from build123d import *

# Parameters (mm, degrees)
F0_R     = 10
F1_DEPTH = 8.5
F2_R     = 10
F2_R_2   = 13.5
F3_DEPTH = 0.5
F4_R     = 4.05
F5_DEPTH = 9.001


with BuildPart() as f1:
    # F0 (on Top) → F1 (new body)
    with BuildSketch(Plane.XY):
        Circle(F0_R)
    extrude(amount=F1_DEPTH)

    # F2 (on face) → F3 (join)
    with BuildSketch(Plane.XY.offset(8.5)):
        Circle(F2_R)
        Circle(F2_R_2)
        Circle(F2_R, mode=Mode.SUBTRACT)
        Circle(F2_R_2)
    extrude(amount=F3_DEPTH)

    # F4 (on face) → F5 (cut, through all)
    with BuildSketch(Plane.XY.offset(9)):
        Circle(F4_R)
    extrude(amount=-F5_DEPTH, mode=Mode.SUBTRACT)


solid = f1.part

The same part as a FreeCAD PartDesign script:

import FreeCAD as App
import Part
import Sketcher

doc = App.newDocument("Part")
body = doc.addObject("PartDesign::Body", "Body")

# Sketch on XY plane
sketch1 = body.newObject("Sketcher::SketchObject", "Sketch")
sketch1.AttachmentSupport = (doc.getObject("XY_Plane"), [""])
sketch1.MapMode = "FlatFace"
sketch1.addGeometry(Part.Circle(App.Vector(0, 0, 0), App.Vector(0, 0, 1), 10), False)
sketch1.addConstraint(Sketcher.Constraint("Coincident", 0, 3, -1, 1))
sketch1.addConstraint(Sketcher.Constraint("Diameter", 0, 20.0))
pad1 = body.newObject("PartDesign::Pad", "Pad")
pad1.Profile = sketch1
pad1.Length = 8.5

# Sketch on XY plane
sketch2 = body.newObject("Sketcher::SketchObject", "Sketch001")
sketch2.AttachmentSupport = (doc.getObject("XY_Plane"), [""])
sketch2.MapMode = "FlatFace"
sketch2.AttachmentOffset = App.Placement(App.Vector(0, 0, 8.5), App.Rotation())
sketch2.addGeometry(Part.Circle(App.Vector(0, 0, 0), App.Vector(0, 0, 1), 14), False)
sketch2.addConstraint(Sketcher.Constraint("Coincident", 0, 3, -1, 1))
sketch2.addConstraint(Sketcher.Constraint("Diameter", 0, 27.0))
pad2 = body.newObject("PartDesign::Pad", "Pad001")
pad2.Profile = sketch2
pad2.Length = 0.5

# Sketch on XY plane
sketch3 = body.newObject("Sketcher::SketchObject", "Sketch002")
sketch3.AttachmentSupport = (doc.getObject("XY_Plane"), [""])
sketch3.MapMode = "FlatFace"
sketch3.AttachmentOffset = App.Placement(App.Vector(0, 0, 9), App.Rotation())
sketch3.addGeometry(Part.Circle(App.Vector(0, 0, 0), App.Vector(0, 0, 1), 4), False)
sketch3.addConstraint(Sketcher.Constraint("Coincident", 0, 3, -1, 1))
sketch3.addConstraint(Sketcher.Constraint("Diameter", 0, 8.1))
pocket1 = body.newObject("PartDesign::Pocket", "Pocket")
pocket1.Profile = sketch3
pocket1.Type = "ThroughAll"

doc.recompute()
